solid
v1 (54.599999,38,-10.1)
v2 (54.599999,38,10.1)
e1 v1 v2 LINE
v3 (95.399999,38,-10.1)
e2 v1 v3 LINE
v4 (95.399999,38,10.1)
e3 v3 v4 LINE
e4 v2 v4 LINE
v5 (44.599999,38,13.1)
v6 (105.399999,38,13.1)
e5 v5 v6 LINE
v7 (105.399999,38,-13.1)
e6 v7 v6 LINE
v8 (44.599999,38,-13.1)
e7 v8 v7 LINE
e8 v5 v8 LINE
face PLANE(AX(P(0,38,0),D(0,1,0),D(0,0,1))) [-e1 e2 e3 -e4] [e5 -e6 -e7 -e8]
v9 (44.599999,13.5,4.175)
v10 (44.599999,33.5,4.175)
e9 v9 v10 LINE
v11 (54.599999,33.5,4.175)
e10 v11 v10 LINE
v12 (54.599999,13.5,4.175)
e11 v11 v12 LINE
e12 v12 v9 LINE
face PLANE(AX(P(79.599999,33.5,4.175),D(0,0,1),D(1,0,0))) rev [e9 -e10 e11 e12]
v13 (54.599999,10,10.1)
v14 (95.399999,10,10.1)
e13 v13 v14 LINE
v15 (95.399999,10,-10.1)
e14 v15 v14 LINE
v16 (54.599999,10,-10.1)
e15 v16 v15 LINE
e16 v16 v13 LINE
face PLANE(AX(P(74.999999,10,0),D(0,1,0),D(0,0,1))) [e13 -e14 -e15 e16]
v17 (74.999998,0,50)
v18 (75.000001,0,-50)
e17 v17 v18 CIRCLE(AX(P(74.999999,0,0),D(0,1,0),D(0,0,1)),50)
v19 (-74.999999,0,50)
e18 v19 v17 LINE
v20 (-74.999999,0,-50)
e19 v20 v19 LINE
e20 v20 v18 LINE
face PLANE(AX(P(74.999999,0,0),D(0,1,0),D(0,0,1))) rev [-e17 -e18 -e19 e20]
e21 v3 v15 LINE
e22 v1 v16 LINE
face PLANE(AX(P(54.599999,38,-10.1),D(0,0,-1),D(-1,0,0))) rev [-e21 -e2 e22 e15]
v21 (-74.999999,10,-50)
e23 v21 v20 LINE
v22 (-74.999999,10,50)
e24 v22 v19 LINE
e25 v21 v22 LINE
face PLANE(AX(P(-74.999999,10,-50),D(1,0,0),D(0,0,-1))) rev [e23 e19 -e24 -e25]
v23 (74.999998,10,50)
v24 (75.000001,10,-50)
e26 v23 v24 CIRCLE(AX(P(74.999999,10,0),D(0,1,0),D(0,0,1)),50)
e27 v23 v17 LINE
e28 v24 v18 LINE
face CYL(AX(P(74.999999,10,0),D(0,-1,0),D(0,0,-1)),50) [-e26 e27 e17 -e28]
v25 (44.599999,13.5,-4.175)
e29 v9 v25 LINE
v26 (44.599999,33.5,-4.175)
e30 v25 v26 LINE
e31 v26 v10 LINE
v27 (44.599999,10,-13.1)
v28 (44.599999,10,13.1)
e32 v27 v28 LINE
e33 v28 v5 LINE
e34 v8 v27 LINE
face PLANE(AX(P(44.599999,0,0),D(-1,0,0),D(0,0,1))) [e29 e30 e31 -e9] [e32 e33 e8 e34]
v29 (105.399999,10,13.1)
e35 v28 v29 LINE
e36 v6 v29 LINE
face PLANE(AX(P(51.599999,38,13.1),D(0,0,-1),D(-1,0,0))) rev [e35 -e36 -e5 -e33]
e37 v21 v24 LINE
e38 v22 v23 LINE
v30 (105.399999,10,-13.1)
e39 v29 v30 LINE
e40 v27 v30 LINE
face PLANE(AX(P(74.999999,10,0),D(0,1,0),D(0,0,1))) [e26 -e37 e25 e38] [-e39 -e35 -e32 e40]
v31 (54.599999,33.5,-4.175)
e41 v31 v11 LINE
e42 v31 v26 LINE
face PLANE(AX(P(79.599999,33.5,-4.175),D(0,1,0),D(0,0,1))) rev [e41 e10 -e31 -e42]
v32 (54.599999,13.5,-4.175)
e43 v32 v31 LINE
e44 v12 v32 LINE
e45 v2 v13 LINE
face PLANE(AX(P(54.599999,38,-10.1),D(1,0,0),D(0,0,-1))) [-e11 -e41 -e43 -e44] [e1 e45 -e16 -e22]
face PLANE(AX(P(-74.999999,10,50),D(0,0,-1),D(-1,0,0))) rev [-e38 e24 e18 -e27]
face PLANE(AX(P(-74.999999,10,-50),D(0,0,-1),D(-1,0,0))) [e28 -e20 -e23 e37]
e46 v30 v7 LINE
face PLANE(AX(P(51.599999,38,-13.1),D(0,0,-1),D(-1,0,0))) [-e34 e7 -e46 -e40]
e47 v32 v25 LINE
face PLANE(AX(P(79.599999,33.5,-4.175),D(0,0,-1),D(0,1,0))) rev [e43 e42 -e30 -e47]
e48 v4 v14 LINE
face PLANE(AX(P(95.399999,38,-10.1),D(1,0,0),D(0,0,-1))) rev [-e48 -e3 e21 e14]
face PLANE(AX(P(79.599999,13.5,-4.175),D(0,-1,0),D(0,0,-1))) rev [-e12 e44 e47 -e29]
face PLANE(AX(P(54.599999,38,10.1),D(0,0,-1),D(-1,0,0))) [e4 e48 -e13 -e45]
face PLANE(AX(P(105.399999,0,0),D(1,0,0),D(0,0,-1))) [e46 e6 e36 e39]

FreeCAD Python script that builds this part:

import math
import FreeCAD as App
import Part
import Sketcher

doc = App.newDocument("Part")
body = doc.addObject("PartDesign::Body", "Body")

# Sketch on XZ plane
sketch1 = body.newObject("Sketcher::SketchObject", "Sketch")
sketch1.AttachmentSupport = (doc.getObject("XZ_Plane"), [""])
sketch1.MapMode = "FlatFace"
sketch1.addGeometry([
    Part.LineSegment(App.Vector(75.000001, -50, 0), App.Vector(-74.999999, -50, 0)),
    Part.LineSegment(App.Vector(-74.999999, -50, 0), App.Vector(-74.999999, 50, 0)),
    Part.LineSegment(App.Vector(-74.999999, 50, 0), App.Vector(74.999998, 50, 0)),
    Part.ArcOfCircle(Part.Circle(App.Vector(74.999999, 0, 0), App.Vector(0, 0, 1), 50), math.radians(-89.999998), math.radians(90.000002)),
], False)
sketch1.addConstraint([
    Sketcher.Constraint("Coincident", 0, 2, 1, 1),
    Sketcher.Constraint("Coincident", 1, 2, 2, 1),
    Sketcher.Constraint("Tangent", 2, 2, 3, 2),
    Sketcher.Constraint("Tangent", 3, 1, 0, 1),
    Sketcher.Constraint("Horizontal", 0),
    Sketcher.Constraint("Vertical", 1),
    Sketcher.Constraint("Horizontal", 2),
    Sketcher.Constraint("Symmetric", 0, 2, 2, 2, -1, 1),
    Sketcher.Constraint("Radius", 3, 50.0),
    Sketcher.Constraint("DistanceX", 0, 2, 0, 1, 150.0),
])
pad1 = body.newObject("PartDesign::Pad", "Pad")
pad1.Profile = sketch1
pad1.Length = 10
pad1.Reversed = True

# Sketch on XZ plane
sketch2 = body.newObject("Sketcher::SketchObject", "Sketch001")
sketch2.AttachmentSupport = (doc.getObject("XZ_Plane"), [""])
sketch2.MapMode = "FlatFace"
sketch2.AttachmentOffset = App.Placement(App.Vector(0, 0, -10), App.Rotation())
sketch2.addGeometry([
    Part.LineSegment(App.Vector(51.599999, -13.1, 0), App.Vector(51.599999, 13.1, 0)),  # 0
    Part.LineSegment(App.Vector(51.599999, 13.1, 0), App.Vector(98.399999, 13.1, 0)),  # 1
    Part.LineSegment(App.Vector(98.399999, 13.1, 0), App.Vector(98.399999, -13.1, 0)),  # 2
    Part.LineSegment(App.Vector(98.399999, -13.1, 0), App.Vector(51.599999, -13.1, 0)),  # 3
    Part.LineSegment(App.Vector(95.399999, 10.1, 0), App.Vector(54.599999, 10.1, 0)),  # 4
    Part.LineSegment(App.Vector(54.599999, 10.1, 0), App.Vector(54.599999, -10.1, 0)),  # 5
    Part.LineSegment(App.Vector(54.599999, -10.1, 0), App.Vector(95.399999, -10.1, 0)),  # 6
    Part.LineSegment(App.Vector(95.399999, -10.1, 0), App.Vector(95.399999, 10.1, 0)),  # 7
], False)
sketch2.addConstraint([
    Sketcher.Constraint("Coincident", 0, 2, 1, 1),
    Sketcher.Constraint("Coincident", 1, 2, 2, 1),
    Sketcher.Constraint("Coincident", 2, 2, 3, 1),
    Sketcher.Constraint("Coincident", 3, 2, 0, 1),
    Sketcher.Constraint("Coincident", 4, 2, 5, 1),
    Sketcher.Constraint("Coincident", 5, 2, 6, 1),
    Sketcher.Constraint("Coincident", 6, 2, 7, 1),
    Sketcher.Constraint("Coincident", 7, 2, 4, 1),
    Sketcher.Constraint("Vertical", 0),
    Sketcher.Constraint("Horizontal", 1),
    Sketcher.Constraint("Vertical", 2),
    Sketcher.Constraint("Horizontal", 3),
    Sketcher.Constraint("Horizontal", 4),
    Sketcher.Constraint("Vertical", 5),
    Sketcher.Constraint("Horizontal", 6),
    Sketcher.Constraint("Vertical", 7),
    Sketcher.Constraint("DistanceX", 1, 1, 1, 2, 46.8),
    Sketcher.Constraint("DistanceX", 4, 2, 4, 1, 40.8),
    Sketcher.Constraint("DistanceY", 0, 1, 0, 2, 26.2),
    Sketcher.Constraint("DistanceY", 5, 2, 5, 1, 20.2),
    Sketcher.Constraint("DistanceX", 0, 2, 4, 2, 3.0),
    Sketcher.Constraint("DistanceY", 4, 2, 0, 2, 3.0),
    Sketcher.Constraint("DistanceX", -1, 1, 0, 2, 51.599999),
    Sketcher.Constraint("DistanceY", -1, 1, 0, 2, 13.1),
])
pad2 = body.newObject("PartDesign::Pad", "Pad001")
pad2.Profile = sketch2
pad2.Length = 28
pad2.Reversed = True

# Sketch on YZ plane
sketch3 = body.newObject("Sketcher::SketchObject", "Sketch002")
sketch3.AttachmentSupport = (doc.getObject("YZ_Plane"), [""])
sketch3.MapMode = "FlatFace"
sketch3.AttachmentOffset = App.Placement(App.Vector(0, 0, 51.599999), App.Rotation())
sketch3.addGeometry([
    Part.LineSegment(App.Vector(33.5, -4.175, 0), App.Vector(13.5, -4.175, 0)),
    Part.LineSegment(App.Vector(13.5, -4.175, 0), App.Vector(13.5, 4.175, 0)),
    Part.LineSegment(App.Vector(13.5, 4.175, 0), App.Vector(33.5, 4.175, 0)),
    Part.LineSegment(App.Vector(33.5, 4.175, 0), App.Vector(33.5, -4.175, 0)),
], False)
sketch3.addConstraint([
    Sketcher.Constraint("Coincident", 0, 2, 1, 1),
    Sketcher.Constraint("Coincident", 1, 2, 2, 1),
    Sketcher.Constraint("Coincident", 2, 2, 3, 1),
    Sketcher.Constraint("Coincident", 3, 2, 0, 1),
    Sketcher.Constraint("Horizontal", 0),
    Sketcher.Constraint("Vertical", 1),
    Sketcher.Constraint("Horizontal", 2),
    Sketcher.Constraint("Vertical", 3),
    Sketcher.Constraint("DistanceX", 0, 2, 0, 1, 20.0),
    Sketcher.Constraint("DistanceY", 1, 1, 1, 2, 8.35),
    Sketcher.Constraint("DistanceX", -1, 1, 0, 2, 13.5),
    Sketcher.Constraint("DistanceY", 0, 2, -1, 1, 4.175),
])
pocket1 = body.newObject("PartDesign::Pocket", "Pocket")
pocket1.Profile = sketch3
pocket1.Length = 28
pocket1.Reversed = True

# Sketch on YZ plane
sketch4 = body.newObject("Sketcher::SketchObject", "Sketch003")
sketch4.AttachmentSupport = (doc.getObject("YZ_Plane"), [""])
sketch4.MapMode = "FlatFace"
sketch4.AttachmentOffset = App.Placement(App.Vector(0, 0, 98.399999), App.Rotation())
sketch4.addGeometry([
    Part.LineSegment(App.Vector(38, 13.1, 0), App.Vector(10, 13.1, 0)),
    Part.LineSegment(App.Vector(10, 13.1, 0), App.Vector(10, -13.1, 0)),
    Part.LineSegment(App.Vector(10, -13.1, 0), App.Vector(38, -13.1, 0)),
    Part.LineSegment(App.Vector(38, -13.1, 0), App.Vector(38, 13.1, 0)),
], False)
sketch4.addConstraint([
    Sketcher.Constraint("Coincident", 0, 2, 1, 1),
    Sketcher.Constraint("Coincident", 1, 2, 2, 1),
    Sketcher.Constraint("Coincident", 2, 2, 3, 1),
    Sketcher.Constraint("Coincident", 3, 2, 0, 1),
    Sketcher.Constraint("Horizontal", 0),
    Sketcher.Constraint("Vertical", 1),
    Sketcher.Constraint("Horizontal", 2),
    Sketcher.Constraint("Vertical", 3),
    Sketcher.Constraint("DistanceX", 0, 2, 0, 1, 28.0),
    Sketcher.Constraint("DistanceY", 1, 2, 1, 1, 26.2),
    Sketcher.Constraint("DistanceX", -1, 1, 0, 2, 10.0),
    Sketcher.Constraint("DistanceY", -1, 1, 0, 2, 13.1),
])
pad3 = body.newObject("PartDesign::Pad", "Pad002")
pad3.Profile = sketch4
pad3.Length = 7

# Sketch on YZ plane
sketch5 = body.newObject("Sketcher::SketchObject", "Sketch004")
sketch5.AttachmentSupport = (doc.getObject("YZ_Plane"), [""])
sketch5.MapMode = "FlatFace"
sketch5.AttachmentOffset = App.Placement(App.Vector(0, 0, 51.599999), App.Rotation())
sketch5.addGeometry([
    Part.LineSegment(App.Vector(10, 13.1, 0), App.Vector(38, 13.1, 0)),  # 0
    Part.LineSegment(App.Vector(38, 13.1, 0), App.Vector(38, -13.1, 0)),  # 1
    Part.LineSegment(App.Vector(38, -13.1, 0), App.Vector(10, -13.1, 0)),  # 2
    Part.LineSegment(App.Vector(10, -13.1, 0), App.Vector(10, 13.1, 0)),  # 3
    Part.LineSegment(App.Vector(13.5, -4.175, 0), App.Vector(33.5, -4.175, 0)),  # 4
    Part.LineSegment(App.Vector(33.5, -4.175, 0), App.Vector(33.5, 4.175, 0)),  # 5
    Part.LineSegment(App.Vector(33.5, 4.175, 0), App.Vector(13.5, 4.175, 0)),  # 6
    Part.LineSegment(App.Vector(13.5, 4.175, 0), App.Vector(13.5, -4.175, 0)),  # 7
], False)
sketch5.addConstraint([
    Sketcher.Constraint("Coincident", 0, 2, 1, 1),
    Sketcher.Constraint("Coincident", 1, 2, 2, 1),
    Sketcher.Constraint("Coincident", 2, 2, 3, 1),
    Sketcher.Constraint("Coincident", 3, 2, 0, 1),
    Sketcher.Constraint("Coincident", 4, 2, 5, 1),
    Sketcher.Constraint("Coincident", 5, 2, 6, 1),
    Sketcher.Constraint("Coincident", 6, 2, 7, 1),
    Sketcher.Constraint("Coincident", 7, 2, 4, 1),
    Sketcher.Constraint("Horizontal", 0),
    Sketcher.Constraint("Vertical", 1),
    Sketcher.Constraint("Horizontal", 2),
    Sketcher.Constraint("Vertical", 3),
    Sketcher.Constraint("Horizontal", 4),
    Sketcher.Constraint("Vertical", 5),
    Sketcher.Constraint("Horizontal", 6),
    Sketcher.Constraint("Vertical", 7),
    Sketcher.Constraint("DistanceX", 0, 1, 0, 2, 28.0),
    Sketcher.Constraint("DistanceX", 4, 1, 4, 2, 20.0),
    Sketcher.Constraint("DistanceY", 1, 2, 1, 1, 26.2),
    Sketcher.Constraint("DistanceX", -1, 1, 0, 2, 38.0),
    Sketcher.Constraint("DistanceY", 5, 1, 5, 2, 8.35),
    Sketcher.Constraint("DistanceY", -1, 1, 0, 2, 13.1),
    Sketcher.Constraint("DistanceX", -1, 1, 4, 2, 33.5),
    Sketcher.Constraint("DistanceY", 4, 2, -1, 1, 4.175),
])
pad4 = body.newObject("PartDesign::Pad", "Pad003")
pad4.Profile = sketch5
pad4.Length = 7
pad4.Reversed = True

doc.recompute()
